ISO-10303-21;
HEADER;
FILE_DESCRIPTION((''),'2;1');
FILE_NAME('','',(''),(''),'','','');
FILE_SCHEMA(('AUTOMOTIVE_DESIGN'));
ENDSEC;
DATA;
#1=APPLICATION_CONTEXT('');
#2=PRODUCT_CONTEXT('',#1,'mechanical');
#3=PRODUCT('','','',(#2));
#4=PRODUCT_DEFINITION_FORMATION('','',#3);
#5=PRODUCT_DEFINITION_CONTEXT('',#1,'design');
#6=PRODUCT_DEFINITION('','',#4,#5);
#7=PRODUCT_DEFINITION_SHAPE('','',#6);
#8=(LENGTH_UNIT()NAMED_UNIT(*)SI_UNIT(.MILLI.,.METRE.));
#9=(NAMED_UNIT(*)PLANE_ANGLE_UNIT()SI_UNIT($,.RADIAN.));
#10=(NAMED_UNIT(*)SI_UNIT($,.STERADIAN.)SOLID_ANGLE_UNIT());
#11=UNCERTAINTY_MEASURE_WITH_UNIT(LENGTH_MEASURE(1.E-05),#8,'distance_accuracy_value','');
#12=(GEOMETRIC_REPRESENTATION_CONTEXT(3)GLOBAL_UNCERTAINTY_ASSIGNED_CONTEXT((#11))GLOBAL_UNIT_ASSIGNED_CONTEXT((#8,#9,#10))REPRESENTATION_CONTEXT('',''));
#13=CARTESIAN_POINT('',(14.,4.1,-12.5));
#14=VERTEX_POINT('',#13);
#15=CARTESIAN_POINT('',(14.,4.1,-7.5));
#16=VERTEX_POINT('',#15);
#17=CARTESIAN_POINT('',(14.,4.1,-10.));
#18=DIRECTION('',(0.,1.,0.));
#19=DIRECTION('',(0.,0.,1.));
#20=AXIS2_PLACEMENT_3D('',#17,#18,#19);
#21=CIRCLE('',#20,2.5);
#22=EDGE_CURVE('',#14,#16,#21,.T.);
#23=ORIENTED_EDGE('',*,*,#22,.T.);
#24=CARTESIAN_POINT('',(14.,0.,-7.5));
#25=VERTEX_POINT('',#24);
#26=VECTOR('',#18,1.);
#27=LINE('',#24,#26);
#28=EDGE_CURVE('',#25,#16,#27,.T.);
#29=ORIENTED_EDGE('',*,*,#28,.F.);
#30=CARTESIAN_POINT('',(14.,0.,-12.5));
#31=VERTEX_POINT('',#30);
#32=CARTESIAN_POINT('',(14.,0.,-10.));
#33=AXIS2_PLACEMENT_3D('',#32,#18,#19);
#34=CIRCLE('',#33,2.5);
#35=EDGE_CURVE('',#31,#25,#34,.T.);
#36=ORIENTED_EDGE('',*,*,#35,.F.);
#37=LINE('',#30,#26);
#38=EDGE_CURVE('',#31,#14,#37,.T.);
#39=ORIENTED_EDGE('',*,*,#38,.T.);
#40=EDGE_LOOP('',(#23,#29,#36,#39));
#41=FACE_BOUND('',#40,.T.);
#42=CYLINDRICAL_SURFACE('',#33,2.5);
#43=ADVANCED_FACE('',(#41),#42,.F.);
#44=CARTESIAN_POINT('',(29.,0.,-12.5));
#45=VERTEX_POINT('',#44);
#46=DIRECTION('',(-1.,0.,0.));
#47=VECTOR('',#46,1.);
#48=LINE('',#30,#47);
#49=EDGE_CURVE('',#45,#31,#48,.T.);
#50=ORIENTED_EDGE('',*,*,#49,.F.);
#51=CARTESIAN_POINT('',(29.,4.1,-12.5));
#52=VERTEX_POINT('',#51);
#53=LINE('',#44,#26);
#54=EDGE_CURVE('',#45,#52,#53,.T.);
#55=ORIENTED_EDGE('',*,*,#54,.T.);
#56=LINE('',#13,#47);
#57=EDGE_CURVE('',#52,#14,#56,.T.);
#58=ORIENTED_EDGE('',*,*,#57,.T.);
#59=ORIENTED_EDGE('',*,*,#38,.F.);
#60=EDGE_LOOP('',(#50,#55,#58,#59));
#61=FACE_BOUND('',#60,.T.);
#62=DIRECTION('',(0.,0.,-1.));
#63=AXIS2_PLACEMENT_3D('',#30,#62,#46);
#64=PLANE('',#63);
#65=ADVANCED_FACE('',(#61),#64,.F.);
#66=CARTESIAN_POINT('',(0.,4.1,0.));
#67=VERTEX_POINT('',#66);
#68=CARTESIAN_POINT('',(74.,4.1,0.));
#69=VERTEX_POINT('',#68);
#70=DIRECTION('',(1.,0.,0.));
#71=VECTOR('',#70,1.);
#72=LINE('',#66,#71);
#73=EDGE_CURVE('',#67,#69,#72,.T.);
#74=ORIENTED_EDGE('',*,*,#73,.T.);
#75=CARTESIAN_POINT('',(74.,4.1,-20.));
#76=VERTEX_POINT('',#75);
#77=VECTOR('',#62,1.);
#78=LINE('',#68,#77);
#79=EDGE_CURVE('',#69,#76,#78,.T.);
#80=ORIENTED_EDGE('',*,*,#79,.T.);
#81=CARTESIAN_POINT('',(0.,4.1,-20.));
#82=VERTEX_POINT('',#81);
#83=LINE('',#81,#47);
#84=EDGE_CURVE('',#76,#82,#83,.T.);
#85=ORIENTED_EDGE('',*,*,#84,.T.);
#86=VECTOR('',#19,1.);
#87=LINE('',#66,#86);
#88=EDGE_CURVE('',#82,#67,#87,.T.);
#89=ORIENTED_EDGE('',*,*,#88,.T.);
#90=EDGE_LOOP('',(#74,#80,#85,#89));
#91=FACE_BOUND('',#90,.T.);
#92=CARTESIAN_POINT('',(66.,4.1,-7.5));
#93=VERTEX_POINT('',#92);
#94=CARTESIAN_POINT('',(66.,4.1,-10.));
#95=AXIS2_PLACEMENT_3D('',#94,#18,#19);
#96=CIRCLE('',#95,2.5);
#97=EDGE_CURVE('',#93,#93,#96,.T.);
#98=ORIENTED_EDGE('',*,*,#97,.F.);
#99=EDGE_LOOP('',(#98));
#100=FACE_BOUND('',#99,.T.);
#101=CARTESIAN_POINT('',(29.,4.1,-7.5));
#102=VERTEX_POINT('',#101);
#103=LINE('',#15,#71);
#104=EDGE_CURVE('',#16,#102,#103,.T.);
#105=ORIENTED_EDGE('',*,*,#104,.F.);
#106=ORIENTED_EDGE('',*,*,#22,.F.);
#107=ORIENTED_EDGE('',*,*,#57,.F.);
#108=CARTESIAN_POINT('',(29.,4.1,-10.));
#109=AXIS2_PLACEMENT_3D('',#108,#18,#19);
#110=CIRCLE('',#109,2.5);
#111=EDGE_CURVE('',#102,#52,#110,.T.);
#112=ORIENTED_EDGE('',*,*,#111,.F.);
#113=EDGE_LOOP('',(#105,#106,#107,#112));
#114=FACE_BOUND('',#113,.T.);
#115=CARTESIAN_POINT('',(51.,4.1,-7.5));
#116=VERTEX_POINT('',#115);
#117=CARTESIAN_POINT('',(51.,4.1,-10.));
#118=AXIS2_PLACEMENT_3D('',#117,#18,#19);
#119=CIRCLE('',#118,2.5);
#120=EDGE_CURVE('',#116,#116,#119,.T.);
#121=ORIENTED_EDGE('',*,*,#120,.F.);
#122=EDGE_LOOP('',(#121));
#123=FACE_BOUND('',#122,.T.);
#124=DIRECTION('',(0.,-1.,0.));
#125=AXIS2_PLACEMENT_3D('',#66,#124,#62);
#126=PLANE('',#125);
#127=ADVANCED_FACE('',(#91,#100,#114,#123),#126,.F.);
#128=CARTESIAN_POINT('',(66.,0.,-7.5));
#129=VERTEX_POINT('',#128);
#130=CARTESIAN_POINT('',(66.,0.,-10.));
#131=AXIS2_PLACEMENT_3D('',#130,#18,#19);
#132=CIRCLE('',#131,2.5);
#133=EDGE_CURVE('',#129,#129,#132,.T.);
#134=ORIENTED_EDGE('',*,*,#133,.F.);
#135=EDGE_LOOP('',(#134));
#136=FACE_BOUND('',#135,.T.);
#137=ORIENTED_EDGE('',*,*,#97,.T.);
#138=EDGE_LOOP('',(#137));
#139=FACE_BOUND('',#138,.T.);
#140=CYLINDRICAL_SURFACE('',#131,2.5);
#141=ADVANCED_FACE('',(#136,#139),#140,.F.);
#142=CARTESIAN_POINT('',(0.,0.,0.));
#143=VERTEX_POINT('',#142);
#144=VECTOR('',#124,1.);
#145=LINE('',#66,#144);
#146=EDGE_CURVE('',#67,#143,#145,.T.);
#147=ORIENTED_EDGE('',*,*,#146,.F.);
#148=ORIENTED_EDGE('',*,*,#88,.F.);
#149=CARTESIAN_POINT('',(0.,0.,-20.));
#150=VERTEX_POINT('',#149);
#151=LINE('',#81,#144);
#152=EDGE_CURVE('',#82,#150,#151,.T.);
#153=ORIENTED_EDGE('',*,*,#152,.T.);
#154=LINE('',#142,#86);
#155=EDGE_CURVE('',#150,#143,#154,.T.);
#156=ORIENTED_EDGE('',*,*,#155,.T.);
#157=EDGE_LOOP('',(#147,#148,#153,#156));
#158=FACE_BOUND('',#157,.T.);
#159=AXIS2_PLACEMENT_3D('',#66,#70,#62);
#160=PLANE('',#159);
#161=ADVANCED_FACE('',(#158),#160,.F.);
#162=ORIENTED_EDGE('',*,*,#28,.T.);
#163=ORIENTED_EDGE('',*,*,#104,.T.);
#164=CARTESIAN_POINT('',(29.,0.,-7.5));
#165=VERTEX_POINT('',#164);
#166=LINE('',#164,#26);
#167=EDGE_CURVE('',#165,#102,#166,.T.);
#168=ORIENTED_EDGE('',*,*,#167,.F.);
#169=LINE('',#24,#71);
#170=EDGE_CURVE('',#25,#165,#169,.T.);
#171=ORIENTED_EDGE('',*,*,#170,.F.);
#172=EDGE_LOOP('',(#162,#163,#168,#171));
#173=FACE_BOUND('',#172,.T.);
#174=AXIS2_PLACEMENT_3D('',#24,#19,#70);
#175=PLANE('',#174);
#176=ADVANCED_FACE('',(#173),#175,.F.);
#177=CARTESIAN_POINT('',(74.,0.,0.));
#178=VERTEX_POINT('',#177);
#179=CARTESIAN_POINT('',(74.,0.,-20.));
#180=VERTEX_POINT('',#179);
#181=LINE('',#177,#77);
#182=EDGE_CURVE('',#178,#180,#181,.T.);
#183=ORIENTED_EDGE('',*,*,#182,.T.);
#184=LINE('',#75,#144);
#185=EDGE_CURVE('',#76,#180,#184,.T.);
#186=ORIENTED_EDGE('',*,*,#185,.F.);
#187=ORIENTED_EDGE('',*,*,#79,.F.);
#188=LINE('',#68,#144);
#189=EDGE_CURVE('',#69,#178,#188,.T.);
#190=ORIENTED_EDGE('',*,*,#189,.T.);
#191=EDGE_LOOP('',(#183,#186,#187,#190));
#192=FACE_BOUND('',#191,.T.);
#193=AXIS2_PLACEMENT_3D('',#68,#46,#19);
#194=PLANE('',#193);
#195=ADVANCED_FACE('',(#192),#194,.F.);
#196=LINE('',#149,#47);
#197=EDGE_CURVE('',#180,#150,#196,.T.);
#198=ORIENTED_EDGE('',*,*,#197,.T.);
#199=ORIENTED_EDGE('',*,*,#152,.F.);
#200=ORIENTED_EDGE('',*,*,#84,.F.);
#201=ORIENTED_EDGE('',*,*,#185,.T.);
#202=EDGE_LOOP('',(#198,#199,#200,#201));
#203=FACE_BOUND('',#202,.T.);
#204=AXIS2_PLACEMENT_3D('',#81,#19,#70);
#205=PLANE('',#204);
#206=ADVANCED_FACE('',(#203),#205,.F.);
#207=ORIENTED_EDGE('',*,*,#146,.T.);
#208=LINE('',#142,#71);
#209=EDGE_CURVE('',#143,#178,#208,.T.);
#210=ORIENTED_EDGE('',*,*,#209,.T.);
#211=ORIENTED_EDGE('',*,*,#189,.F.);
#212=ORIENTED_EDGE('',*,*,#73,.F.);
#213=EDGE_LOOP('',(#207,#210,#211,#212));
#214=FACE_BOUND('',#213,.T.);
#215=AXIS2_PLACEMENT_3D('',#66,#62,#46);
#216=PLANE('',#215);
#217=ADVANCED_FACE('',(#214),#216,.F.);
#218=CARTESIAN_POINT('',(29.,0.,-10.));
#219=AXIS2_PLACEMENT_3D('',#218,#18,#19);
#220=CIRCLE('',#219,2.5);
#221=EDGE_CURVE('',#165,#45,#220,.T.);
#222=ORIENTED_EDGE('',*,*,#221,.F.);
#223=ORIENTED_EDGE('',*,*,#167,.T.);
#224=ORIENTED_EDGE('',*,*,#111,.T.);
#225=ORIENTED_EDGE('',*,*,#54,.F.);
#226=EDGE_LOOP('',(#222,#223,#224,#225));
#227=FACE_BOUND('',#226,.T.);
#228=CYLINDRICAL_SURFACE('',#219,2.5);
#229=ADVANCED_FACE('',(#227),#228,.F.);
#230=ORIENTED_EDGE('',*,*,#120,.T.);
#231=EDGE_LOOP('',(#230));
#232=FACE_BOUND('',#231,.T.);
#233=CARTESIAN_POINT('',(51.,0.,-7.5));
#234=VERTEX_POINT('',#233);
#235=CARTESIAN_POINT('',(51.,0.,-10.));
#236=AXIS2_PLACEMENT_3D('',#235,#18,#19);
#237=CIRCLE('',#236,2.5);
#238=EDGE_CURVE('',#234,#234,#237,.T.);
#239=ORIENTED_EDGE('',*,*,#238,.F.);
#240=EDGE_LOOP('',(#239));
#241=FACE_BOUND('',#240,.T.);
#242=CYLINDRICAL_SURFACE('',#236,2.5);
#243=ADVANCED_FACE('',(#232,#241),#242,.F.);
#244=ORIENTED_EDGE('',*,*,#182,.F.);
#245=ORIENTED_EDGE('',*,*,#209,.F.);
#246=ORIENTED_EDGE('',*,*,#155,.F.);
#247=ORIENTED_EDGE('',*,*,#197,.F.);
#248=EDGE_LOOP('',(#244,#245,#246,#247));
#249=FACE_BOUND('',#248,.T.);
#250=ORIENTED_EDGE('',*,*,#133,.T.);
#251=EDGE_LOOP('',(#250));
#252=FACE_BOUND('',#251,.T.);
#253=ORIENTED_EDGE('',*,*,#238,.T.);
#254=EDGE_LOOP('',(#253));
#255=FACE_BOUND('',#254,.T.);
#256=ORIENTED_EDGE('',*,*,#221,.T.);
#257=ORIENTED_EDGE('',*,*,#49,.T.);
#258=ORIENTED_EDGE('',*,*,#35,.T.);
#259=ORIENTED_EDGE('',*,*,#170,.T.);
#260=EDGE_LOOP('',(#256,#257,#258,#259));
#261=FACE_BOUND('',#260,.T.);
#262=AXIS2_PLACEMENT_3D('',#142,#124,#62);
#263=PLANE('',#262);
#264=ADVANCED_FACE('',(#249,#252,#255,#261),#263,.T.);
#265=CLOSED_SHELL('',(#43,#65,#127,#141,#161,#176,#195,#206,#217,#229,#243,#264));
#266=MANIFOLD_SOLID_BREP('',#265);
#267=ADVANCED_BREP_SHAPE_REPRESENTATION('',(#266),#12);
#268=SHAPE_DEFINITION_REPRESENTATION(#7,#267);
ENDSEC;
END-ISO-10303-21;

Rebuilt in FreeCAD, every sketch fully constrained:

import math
import FreeCAD as App
import Part
import Sketcher

V = App.Vector
Q = App.Units.Quantity

doc = App.newDocument("Part")
body = doc.addObject("PartDesign::Body", "Body")

sketch1 = body.newObject("Sketcher::SketchObject", "Sketch")
sketch1.AttachmentSupport = (doc.getObject("XZ_Plane"), [""])
sketch1.MapMode = "FlatFace"
sketch1.addGeometry([
    Part.LineSegment(V(0, -20, 0), V(0, 0, 0)),
    Part.LineSegment(V(0, 0, 0), V(74, 0, 0)),
    Part.LineSegment(V(74, 0, 0), V(74, -20, 0)),
    Part.LineSegment(V(74, -20, 0), V(0, -20, 0)),
], False)
sketch1.addConstraint([
    Sketcher.Constraint("Coincident", 0, 2, 1, 1),
    Sketcher.Constraint("Coincident", 1, 2, 2, 1),
    Sketcher.Constraint("Coincident", 2, 2, 3, 1),
    Sketcher.Constraint("Coincident", 3, 2, 0, 1),
    Sketcher.Constraint("Vertical", 0),
    Sketcher.Constraint("Horizontal", 1),
    Sketcher.Constraint("Vertical", 2),
    Sketcher.Constraint("Horizontal", 3),
    Sketcher.Constraint("Coincident", 0, 2, -1, 1),
    Sketcher.Constraint("DistanceX", 1, 1, 1, 2, Q("74 mm")),
    Sketcher.Constraint("DistanceY", 0, 1, 0, 2, Q("20 mm")),
])
pad1 = body.newObject("PartDesign::Pad", "Pad")
pad1.Profile = sketch1
pad1.Length = 4.1
pad1.Reversed = True

sketch2 = body.newObject("Sketcher::SketchObject", "Sketch001")
sketch2.AttachmentSupport = (doc.getObject("XZ_Plane"), [""])
sketch2.MapMode = "FlatFace"
sketch2.AttachmentOffset = App.Placement(V(0, 0, -4.1), App.Rotation())
sketch2.addGeometry([
    Part.Circle(V(66, -10, 0), V(0, 0, 1), 2.5),
    Part.Circle(V(51, -10, 0), V(0, 0, 1), 2.5),
    Part.LineSegment(V(29, -12.5, 0), V(14, -12.5, 0)),
    Part.ArcOfCircle(Part.Circle(V(14, -10, 0), V(0, 0, 1), 2.5), math.radians(90), math.radians(270)),
    Part.LineSegment(V(14, -7.5, 0), V(29, -7.5, 0)),
    Part.ArcOfCircle(Part.Circle(V(29, -10, 0), V(0, 0, 1), 2.5), math.radians(-90), math.radians(90)),
], False)
sketch2.addConstraint([
    Sketcher.Constraint("Tangent", 2, 2, 3, 2),
    Sketcher.Constraint("Tangent", 3, 1, 4, 1),
    Sketcher.Constraint("Tangent", 4, 2, 5, 2),
    Sketcher.Constraint("Tangent", 5, 1, 2, 1),
    Sketcher.Constraint("Horizontal", 2),
    Sketcher.Constraint("Horizontal", 4),
    Sketcher.Constraint("Equal", 0, 1),
    Sketcher.Constraint("Equal", 1, 3),
    Sketcher.Constraint("Horizontal", 0, 3, 1, 3),
    Sketcher.Constraint("Horizontal", 1, 3, 3, 3),
    Sketcher.Constraint("Diameter", 0, Q("5 mm")),
    Sketcher.Constraint("DistanceX", 2, 2, 2, 1, Q("15 mm")),
    Sketcher.Constraint("DistanceX", -1, 1, 0, 3, Q("66 mm")),
    Sketcher.Constraint("DistanceY", 0, 3, -1, 1, Q("10 mm")),
    Sketcher.Constraint("DistanceX", -1, 1, 1, 3, Q("51 mm")),
    Sketcher.Constraint("DistanceX", -1, 1, 3, 3, Q("14 mm")),
])
pocket1 = body.newObject("PartDesign::Pocket", "Pocket")
pocket1.Profile = sketch2
pocket1.Length = 4.1
pocket1.Reversed = True

doc.recompute()
